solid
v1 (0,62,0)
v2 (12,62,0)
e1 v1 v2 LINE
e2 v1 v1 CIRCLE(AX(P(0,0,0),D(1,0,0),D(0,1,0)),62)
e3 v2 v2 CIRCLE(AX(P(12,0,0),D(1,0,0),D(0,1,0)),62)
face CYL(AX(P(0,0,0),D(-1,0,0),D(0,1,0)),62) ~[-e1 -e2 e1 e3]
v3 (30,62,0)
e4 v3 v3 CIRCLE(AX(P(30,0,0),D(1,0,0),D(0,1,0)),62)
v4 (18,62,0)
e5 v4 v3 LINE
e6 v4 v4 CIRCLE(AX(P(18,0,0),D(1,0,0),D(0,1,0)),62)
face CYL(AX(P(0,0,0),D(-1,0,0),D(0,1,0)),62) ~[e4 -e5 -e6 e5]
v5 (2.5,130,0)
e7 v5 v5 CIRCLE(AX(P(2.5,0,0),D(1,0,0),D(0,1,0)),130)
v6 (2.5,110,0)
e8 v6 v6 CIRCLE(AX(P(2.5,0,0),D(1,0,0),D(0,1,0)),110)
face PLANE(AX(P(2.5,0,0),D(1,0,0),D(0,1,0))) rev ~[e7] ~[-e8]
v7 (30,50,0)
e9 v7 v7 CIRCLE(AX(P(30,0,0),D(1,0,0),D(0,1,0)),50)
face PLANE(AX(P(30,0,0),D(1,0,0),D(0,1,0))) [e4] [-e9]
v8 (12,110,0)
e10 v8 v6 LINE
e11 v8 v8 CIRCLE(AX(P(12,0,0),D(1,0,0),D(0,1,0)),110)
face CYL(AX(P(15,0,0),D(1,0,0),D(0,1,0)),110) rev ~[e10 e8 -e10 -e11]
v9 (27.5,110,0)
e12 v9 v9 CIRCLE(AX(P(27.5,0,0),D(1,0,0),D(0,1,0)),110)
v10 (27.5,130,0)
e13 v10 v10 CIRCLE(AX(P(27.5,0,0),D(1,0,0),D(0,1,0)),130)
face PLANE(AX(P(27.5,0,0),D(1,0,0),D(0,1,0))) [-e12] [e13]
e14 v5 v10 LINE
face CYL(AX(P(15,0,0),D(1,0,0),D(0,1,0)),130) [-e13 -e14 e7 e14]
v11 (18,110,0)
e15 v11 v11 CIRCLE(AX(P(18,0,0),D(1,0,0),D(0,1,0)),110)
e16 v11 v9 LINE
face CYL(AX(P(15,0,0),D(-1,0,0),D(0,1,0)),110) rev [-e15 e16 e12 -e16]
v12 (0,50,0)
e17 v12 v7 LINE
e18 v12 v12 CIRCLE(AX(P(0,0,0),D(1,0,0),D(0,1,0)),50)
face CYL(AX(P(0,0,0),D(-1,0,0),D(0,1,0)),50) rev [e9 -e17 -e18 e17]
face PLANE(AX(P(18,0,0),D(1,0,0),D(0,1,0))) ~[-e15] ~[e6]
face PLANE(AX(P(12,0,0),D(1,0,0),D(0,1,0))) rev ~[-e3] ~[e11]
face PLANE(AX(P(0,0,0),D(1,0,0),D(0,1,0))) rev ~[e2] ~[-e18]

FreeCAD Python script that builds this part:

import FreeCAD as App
import Part
import Sketcher

V = App.Vector
Q = App.Units.Quantity

doc = App.newDocument("Part")
body = doc.addObject("PartDesign::Body", "Body")

sketch1 = doc.addObject("Sketcher::SketchObject", "Sketch")
body.addObject(sketch1)
sketch1.AttachmentSupport = (doc.YZ_Plane, [""])
sketch1.MapMode = "FlatFace"
sketch1.addGeometry(Part.Circle(V(0, 0, 0), V(0, 0, 1), 62), False)
sketch1.addGeometry(Part.Circle(V(0, 0, 0), V(0, 0, 1), 50), False)
sketch1.addConstraint(Sketcher.Constraint("Coincident", 0, 3, -1, 1))
sketch1.addConstraint(Sketcher.Constraint("Coincident", 1, 3, -1, 1))
sketch1.addConstraint(Sketcher.Constraint("Diameter", 0, Q("124 mm")))
sketch1.addConstraint(Sketcher.Constraint("Diameter", 1, Q("100 mm")))
pad1 = doc.addObject("PartDesign::Pad", "Pad")
body.addObject(pad1)
pad1.Profile = sketch1
pad1.Length = 30

sketch2 = doc.addObject("Sketcher::SketchObject", "Sketch001")
body.addObject(sketch2)
sketch2.AttachmentSupport = (doc.XY_Plane, [""])
sketch2.MapMode = "FlatFace"
sketch2.addGeometry(Part.LineSegment(V(12, 110, 0), V(12, 62, 0)), False)
sketch2.addGeometry(Part.LineSegment(V(12, 62, 0), V(18, 62, 0)), False)
sketch2.addGeometry(Part.LineSegment(V(18, 62, 0), V(18, 110, 0)), False)
sketch2.addGeometry(Part.LineSegment(V(18, 110, 0), V(12, 110, 0)), False)
sketch2.addConstraint(Sketcher.Constraint("Coincident", 0, 2, 1, 1))
sketch2.addConstraint(Sketcher.Constraint("Coincident", 1, 2, 2, 1))
sketch2.addConstraint(Sketcher.Constraint("Coincident", 2, 2, 3, 1))
sketch2.addConstraint(Sketcher.Constraint("Coincident", 3, 2, 0, 1))
sketch2.addConstraint(Sketcher.Constraint("Vertical", 0))
sketch2.addConstraint(Sketcher.Constraint("Horizontal", 1))
sketch2.addConstraint(Sketcher.Constraint("Vertical", 2))
sketch2.addConstraint(Sketcher.Constraint("Horizontal", 3))
sketch2.addConstraint(Sketcher.Constraint("DistanceX", 1, 1, 1, 2, Q("6 mm")))
sketch2.addConstraint(Sketcher.Constraint("DistanceY", 0, 2, 0, 1, Q("48 mm")))
sketch2.addConstraint(Sketcher.Constraint("DistanceX", -1, 1, 0, 2, Q("12 mm")))
sketch2.addConstraint(Sketcher.Constraint("DistanceY", -1, 1, 0, 2, Q("62 mm")))
revolution = doc.addObject("PartDesign::Revolution", "Revolution")
body.addObject(revolution)
revolution.Profile = sketch2
revolution.ReferenceAxis = (sketch2, ["H_Axis"])
revolution.Angle = 360

sketch3 = doc.addObject("Sketcher::SketchObject", "Sketch002")
body.addObject(sketch3)
sketch3.AttachmentSupport = (doc.YZ_Plane, [""])
sketch3.MapMode = "FlatFace"
sketch3.AttachmentOffset = App.Placement(V(0, 0, 15), App.Rotation())
sketch3.addGeometry(Part.Circle(V(0, 0, 0), V(0, 0, 1), 130), False)
sketch3.addGeometry(Part.Circle(V(0, 0, 0), V(0, 0, 1), 110), False)
sketch3.addConstraint(Sketcher.Constraint("Coincident", 0, 3, -1, 1))
sketch3.addConstraint(Sketcher.Constraint("Coincident", 1, 3, -1, 1))
sketch3.addConstraint(Sketcher.Constraint("Diameter", 0, Q("260 mm")))
sketch3.addConstraint(Sketcher.Constraint("Diameter", 1, Q("220 mm")))
pad2 = doc.addObject("PartDesign::Pad", "Pad001")
body.addObject(pad2)
pad2.Profile = sketch3
pad2.Length = 25
pad2.Midplane = True

doc.recompute()
